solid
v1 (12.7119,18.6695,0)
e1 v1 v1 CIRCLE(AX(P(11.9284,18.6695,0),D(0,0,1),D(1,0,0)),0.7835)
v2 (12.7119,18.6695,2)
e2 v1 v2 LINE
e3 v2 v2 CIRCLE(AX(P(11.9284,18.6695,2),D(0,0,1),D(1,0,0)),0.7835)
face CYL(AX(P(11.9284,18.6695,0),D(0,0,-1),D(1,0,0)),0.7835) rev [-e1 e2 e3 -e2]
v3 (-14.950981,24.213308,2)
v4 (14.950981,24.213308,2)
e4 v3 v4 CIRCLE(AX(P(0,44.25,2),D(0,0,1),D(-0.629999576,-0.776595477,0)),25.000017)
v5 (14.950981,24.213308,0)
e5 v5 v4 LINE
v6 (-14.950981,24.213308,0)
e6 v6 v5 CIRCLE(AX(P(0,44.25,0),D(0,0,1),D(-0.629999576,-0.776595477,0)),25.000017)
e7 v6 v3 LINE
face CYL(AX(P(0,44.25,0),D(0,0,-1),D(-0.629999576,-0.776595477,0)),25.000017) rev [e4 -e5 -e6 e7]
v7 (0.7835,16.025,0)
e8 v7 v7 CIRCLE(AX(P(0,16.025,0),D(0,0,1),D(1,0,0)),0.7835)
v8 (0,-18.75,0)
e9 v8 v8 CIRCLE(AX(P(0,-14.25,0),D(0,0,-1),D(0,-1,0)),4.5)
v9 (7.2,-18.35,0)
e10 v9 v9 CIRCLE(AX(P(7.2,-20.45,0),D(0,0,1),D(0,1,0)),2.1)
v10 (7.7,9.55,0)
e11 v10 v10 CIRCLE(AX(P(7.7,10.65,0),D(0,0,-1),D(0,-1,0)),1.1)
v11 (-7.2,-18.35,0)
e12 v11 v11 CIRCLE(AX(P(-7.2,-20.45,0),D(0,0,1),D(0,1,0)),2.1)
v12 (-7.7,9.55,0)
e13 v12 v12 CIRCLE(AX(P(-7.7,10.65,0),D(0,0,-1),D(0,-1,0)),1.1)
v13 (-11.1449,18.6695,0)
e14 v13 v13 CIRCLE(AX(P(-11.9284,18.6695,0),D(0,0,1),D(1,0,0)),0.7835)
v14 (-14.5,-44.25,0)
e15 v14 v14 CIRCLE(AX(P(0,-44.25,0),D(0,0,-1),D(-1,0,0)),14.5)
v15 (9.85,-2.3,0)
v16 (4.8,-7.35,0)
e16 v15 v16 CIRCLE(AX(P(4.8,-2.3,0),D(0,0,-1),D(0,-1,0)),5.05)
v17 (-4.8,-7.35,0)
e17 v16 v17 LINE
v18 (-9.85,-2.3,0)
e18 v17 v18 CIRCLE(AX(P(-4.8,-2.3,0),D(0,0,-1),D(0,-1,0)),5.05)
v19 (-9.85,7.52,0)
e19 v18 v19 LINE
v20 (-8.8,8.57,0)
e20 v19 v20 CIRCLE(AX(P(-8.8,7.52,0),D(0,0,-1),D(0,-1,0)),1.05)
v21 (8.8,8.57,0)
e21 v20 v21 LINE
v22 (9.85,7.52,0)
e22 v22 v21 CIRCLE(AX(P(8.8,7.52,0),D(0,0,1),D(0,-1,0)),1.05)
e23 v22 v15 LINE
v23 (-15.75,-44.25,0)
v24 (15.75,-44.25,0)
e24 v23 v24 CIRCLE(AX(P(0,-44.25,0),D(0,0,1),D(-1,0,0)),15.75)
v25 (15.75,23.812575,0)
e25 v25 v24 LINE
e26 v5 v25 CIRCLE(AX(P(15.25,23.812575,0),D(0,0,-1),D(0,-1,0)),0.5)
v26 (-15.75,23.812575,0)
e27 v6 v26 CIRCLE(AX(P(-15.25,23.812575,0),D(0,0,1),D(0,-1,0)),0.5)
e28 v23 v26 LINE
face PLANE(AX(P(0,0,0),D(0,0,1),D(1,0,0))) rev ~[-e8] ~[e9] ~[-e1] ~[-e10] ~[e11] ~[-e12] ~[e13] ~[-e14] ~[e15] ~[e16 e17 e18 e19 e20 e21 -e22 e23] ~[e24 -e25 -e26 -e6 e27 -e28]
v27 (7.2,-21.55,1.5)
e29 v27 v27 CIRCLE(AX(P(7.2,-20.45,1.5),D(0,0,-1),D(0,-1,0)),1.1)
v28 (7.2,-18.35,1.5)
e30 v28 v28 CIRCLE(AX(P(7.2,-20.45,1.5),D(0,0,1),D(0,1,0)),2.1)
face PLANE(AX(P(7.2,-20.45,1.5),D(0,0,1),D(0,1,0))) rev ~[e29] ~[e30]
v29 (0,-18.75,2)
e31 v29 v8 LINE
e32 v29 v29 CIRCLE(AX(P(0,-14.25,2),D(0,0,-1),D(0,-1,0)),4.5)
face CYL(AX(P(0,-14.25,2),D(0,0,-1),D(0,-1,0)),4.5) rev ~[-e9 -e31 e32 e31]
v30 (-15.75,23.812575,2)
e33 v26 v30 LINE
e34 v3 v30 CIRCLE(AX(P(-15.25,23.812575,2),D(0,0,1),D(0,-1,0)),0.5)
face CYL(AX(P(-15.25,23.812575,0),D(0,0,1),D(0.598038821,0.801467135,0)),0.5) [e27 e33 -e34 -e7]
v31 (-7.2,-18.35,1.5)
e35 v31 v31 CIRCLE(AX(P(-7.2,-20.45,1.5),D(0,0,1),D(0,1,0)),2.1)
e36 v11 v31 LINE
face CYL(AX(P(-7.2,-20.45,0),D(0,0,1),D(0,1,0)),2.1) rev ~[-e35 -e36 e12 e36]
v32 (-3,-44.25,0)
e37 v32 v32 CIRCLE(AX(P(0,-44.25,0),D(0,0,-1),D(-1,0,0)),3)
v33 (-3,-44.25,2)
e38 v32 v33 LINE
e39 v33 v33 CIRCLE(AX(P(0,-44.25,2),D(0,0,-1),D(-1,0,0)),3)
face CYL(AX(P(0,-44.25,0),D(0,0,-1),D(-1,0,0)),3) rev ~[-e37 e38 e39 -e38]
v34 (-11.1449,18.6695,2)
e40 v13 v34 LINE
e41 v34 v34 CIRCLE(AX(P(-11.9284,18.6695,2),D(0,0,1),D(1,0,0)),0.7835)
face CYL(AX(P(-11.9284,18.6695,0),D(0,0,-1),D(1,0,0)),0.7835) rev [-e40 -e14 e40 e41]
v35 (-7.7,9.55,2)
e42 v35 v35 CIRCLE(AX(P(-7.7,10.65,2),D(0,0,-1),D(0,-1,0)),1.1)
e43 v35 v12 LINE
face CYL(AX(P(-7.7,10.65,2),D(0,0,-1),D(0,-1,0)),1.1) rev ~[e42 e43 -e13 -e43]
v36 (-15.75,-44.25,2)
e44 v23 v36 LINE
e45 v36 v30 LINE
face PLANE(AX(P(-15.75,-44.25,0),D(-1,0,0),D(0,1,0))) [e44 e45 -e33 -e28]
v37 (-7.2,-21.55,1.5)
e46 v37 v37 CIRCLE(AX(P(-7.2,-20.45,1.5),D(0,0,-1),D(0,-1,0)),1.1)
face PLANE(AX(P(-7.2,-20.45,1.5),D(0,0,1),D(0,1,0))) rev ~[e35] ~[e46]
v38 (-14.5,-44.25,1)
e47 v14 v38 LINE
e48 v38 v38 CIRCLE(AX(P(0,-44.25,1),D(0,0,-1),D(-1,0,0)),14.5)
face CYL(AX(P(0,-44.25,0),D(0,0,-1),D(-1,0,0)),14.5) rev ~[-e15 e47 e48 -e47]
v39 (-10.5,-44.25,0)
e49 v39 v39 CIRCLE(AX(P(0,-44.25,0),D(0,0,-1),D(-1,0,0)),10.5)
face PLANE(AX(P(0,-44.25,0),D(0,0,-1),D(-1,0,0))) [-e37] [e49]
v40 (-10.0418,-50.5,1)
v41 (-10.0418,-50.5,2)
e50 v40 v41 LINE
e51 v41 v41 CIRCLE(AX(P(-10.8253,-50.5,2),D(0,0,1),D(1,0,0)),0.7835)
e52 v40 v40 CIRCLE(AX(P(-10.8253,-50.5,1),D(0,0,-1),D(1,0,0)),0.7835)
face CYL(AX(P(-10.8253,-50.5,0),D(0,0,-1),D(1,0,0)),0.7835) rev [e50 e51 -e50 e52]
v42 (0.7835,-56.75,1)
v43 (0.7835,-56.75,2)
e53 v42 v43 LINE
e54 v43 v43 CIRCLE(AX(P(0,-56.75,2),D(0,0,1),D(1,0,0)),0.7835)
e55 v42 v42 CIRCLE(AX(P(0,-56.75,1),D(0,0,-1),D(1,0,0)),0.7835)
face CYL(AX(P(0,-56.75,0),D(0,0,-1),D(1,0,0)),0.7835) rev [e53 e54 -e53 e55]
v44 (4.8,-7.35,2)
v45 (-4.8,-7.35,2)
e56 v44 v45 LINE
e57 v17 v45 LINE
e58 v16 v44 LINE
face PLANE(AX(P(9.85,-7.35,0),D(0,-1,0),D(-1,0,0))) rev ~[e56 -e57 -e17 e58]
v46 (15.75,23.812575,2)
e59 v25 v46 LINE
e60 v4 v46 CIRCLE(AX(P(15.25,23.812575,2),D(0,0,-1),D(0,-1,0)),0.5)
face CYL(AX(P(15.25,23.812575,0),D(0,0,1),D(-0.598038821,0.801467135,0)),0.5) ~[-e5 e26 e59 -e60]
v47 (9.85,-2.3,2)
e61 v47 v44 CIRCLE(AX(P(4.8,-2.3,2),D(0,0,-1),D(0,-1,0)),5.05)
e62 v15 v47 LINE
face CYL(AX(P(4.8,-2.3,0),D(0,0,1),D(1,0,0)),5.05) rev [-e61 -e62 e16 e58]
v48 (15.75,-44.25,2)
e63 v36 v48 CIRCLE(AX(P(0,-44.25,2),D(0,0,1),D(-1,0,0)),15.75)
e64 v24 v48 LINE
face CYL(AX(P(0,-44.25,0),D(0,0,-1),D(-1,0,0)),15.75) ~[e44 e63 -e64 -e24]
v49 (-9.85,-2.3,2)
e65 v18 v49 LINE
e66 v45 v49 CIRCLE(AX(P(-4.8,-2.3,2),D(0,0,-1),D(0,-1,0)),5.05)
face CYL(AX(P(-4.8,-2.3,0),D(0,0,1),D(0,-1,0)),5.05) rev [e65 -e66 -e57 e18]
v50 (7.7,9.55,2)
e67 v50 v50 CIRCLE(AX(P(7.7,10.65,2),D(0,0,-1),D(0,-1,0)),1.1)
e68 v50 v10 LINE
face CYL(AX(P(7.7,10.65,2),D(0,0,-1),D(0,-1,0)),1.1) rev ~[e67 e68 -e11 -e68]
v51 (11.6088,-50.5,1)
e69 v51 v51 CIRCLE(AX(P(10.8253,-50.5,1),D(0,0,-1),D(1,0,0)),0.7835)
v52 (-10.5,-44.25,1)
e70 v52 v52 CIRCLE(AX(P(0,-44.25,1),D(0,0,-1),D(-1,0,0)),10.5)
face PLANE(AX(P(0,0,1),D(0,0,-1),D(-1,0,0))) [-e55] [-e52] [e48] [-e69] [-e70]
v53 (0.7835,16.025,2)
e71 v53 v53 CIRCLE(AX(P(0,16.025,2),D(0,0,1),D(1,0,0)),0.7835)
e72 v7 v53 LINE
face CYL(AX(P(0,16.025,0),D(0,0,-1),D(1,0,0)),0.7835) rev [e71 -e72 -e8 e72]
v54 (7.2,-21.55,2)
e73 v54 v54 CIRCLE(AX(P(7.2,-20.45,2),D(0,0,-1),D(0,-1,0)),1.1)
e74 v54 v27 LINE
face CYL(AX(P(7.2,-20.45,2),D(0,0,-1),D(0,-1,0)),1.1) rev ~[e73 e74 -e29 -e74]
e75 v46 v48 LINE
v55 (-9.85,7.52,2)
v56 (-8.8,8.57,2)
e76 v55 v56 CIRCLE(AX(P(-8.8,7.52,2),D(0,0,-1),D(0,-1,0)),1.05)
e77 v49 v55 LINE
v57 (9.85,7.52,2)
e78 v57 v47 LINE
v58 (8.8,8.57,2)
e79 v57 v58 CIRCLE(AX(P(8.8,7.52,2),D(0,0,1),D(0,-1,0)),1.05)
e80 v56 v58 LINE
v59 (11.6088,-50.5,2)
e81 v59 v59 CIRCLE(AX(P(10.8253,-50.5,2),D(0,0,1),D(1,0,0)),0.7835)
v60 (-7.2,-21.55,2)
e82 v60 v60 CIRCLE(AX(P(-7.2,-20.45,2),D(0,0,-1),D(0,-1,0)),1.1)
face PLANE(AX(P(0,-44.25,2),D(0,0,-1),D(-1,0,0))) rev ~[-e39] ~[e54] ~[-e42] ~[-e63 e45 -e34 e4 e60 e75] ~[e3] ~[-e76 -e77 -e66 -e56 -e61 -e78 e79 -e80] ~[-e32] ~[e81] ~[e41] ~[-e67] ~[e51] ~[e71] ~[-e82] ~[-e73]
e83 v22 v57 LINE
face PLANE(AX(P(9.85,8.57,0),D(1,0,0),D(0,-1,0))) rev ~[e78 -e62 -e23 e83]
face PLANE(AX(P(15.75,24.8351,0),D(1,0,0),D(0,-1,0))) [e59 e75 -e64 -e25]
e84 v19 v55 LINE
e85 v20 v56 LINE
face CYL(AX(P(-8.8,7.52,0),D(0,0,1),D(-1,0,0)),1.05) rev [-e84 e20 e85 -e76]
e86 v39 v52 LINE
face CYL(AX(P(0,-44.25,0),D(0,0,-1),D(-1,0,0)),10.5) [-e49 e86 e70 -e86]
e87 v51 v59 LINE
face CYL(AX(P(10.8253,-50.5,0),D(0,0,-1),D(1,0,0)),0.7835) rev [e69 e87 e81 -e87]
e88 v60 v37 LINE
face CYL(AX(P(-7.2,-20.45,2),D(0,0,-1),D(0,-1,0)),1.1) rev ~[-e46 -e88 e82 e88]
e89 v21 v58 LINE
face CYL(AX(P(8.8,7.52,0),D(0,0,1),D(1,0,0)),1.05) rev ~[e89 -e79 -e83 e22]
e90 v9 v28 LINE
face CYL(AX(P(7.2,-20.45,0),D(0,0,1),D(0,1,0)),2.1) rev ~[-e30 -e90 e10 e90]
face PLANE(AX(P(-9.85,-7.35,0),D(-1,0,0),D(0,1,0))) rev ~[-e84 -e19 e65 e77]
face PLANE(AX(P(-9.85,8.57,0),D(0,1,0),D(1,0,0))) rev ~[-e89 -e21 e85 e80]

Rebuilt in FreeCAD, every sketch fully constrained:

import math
import FreeCAD as App
import Part
import Sketcher

V = App.Vector
Q = App.Units.Quantity


def edges_at(feature, points):
    """Names of the edges that pass closest to the given points."""
    edges = feature.Shape.Edges
    near = lambda p: min(range(len(edges)), key=lambda i: edges[i].distToShape(Part.Vertex(*p))[0])
    return sorted({f"Edge{near(p) + 1}" for p in points})


def add_polygon(sketch, points):
    """Adds a closed chain of lines whose ends are joined by coincident constraints."""
    first, n = sketch.GeometryCount, len(points)
    for a, b in zip(points, points[1:] + points[:1]):
        sketch.addGeometry(Part.LineSegment(App.Vector(*a, 0), App.Vector(*b, 0)), False)
    for i in range(n):
        sketch.addConstraint(Sketcher.Constraint("Coincident", first + i, 2, first + (i + 1) % n, 1))

doc = App.newDocument("Part")
body = doc.addObject("PartDesign::Body", "Body")

# Sketch on XY plane
sketch1 = body.newObject("Sketcher::SketchObject", "Sketch")
sketch1.AttachmentSupport = (doc.getObject("XY_Plane"), [""])
sketch1.MapMode = "FlatFace"
sketch1.addGeometry(Part.ArcOfCircle(Part.Circle(V(0, 44.25, 0), V(0, 0, 1), 25.000017), math.radians(-129.050091), math.radians(-50.949909)), False)  # 0
sketch1.addGeometry(Part.LineSegment(V(-15.75, 24.8351, 0), V(-15.75, -44.25, 0)), False)  # 1
sketch1.addGeometry(Part.ArcOfCircle(Part.Circle(V(0, -44.25, 0), V(0, 0, 1), 15.75), math.radians(180), math.radians(360)), False)  # 2
sketch1.addGeometry(Part.LineSegment(V(15.75, -44.25, 0), V(15.75, 24.8351, 0)), False)  # 3
add_polygon(sketch1, [(9.85, -7.35), (-9.85, -7.35), (-9.85, 8.57), (9.85, 8.57)])  # lines 4-7
sketch1.addGeometry(Part.Circle(V(-10.8253, -50.5, 0), V(0, 0, 1), 0.7835), False)  # 8
sketch1.addGeometry(Part.Circle(V(0, -56.75, 0), V(0, 0, 1), 0.7835), False)  # 9
sketch1.addGeometry(Part.Circle(V(0, -44.25, 0), V(0, 0, 1), 4), False)  # 10
sketch1.addGeometry(Part.Circle(V(10.8253, -50.5, 0), V(0, 0, 1), 0.7835), False)  # 11
sketch1.addGeometry(Part.Circle(V(-11.9284, 18.6695, 0), V(0, 0, 1), 0.7835), False)  # 12
sketch1.addGeometry(Part.Circle(V(11.9284, 18.6695, 0), V(0, 0, 1), 0.7835), False)  # 13
sketch1.addGeometry(Part.Circle(V(0, 16.025, 0), V(0, 0, 1), 0.7835), False)  # 14
sketch1.addConstraint([
    Sketcher.Constraint("Coincident", 0, 1, 1, 1),
    Sketcher.Constraint("Tangent", 1, 2, 2, 1),
    Sketcher.Constraint("Tangent", 2, 2, 3, 1),
    Sketcher.Constraint("Coincident", 3, 2, 0, 2),
    Sketcher.Constraint("Vertical", 1),
    Sketcher.Constraint("Vertical", 3),
    Sketcher.Constraint("Horizontal", 4),
    Sketcher.Constraint("Vertical", 5),
    Sketcher.Constraint("Horizontal", 6),
    Sketcher.Constraint("Vertical", 7),
    Sketcher.Constraint("Coincident", 10, 3, 2, 3),
    Sketcher.Constraint("Equal", 8, 9),
    Sketcher.Constraint("Equal", 9, 11),
    Sketcher.Constraint("Equal", 11, 12),
    Sketcher.Constraint("Equal", 12, 13),
    Sketcher.Constraint("Equal", 13, 14),
    Sketcher.Constraint("Symmetric", 0, 3, 2, 3, -1, 1),
    Sketcher.Constraint("Symmetric", 8, 3, 11, 3, -2),
    Sketcher.Constraint("Symmetric", 12, 3, 13, 3, -2),
    Sketcher.Constraint("PointOnObject", 0, 3, -2),
    Sketcher.Constraint("PointOnObject", 9, 3, -2),
    Sketcher.Constraint("PointOnObject", 14, 3, -2),
    Sketcher.Constraint("Radius", 2, Q("15.75 mm")),
    Sketcher.Constraint("Diameter", 10, Q("8 mm")),
    Sketcher.Constraint("Radius", 0, Q("25 mm")),
    Sketcher.Constraint("Diameter", 8, Q("1.567 mm")),
    Sketcher.Constraint("DistanceX", 4, 2, 4, 1, Q("19.7 mm")),
    Sketcher.Constraint("DistanceY", 9, 3, 0, 3, Q("101 mm")),
    Sketcher.Constraint("DistanceY", 5, 1, 5, 2, Q("15.92 mm")),
    Sketcher.Constraint("DistanceY", 8, 3, -1, 1, Q("50.5 mm")),
    Sketcher.Constraint("DistanceY", 2, 3, 0, 3, Q("88.5 mm")),
    Sketcher.Constraint("DistanceX", 0, 1, 4, 2, Q("5.9 mm")),
    Sketcher.Constraint("DistanceY", 1, 2, 4, 2, Q("36.9 mm")),
    Sketcher.Constraint("DistanceY", 14, 3, 0, 1, Q("8.81 mm")),
    Sketcher.Constraint("DistanceX", 12, 3, 8, 3, Q("1.103 mm")),
    Sketcher.Constraint("DistanceX", 8, 3, -1, 1, Q("10.8253 mm")),
    Sketcher.Constraint("DistanceY", -1, 1, 12, 3, Q("18.6695 mm")),
])
pad1 = body.newObject("PartDesign::Pad", "Pad")
pad1.Profile = sketch1
pad1.Length = 2

# Sketch on XY plane
sketch2 = body.newObject("Sketcher::SketchObject", "Sketch001")
sketch2.AttachmentSupport = (doc.getObject("XY_Plane"), [""])
sketch2.MapMode = "FlatFace"
sketch2.AttachmentOffset = App.Placement(V(0, 0, 2), App.Rotation())
sketch2.addGeometry([
    Part.Circle(V(7.7, 10.65, 0), V(0, 0, 1), 1.1),  # 0
    Part.Circle(V(7.2, -20.45, 0), V(0, 0, 1), 1.1),  # 1
    Part.Circle(V(-7.2, -20.45, 0), V(0, 0, 1), 1.1),  # 2
    Part.Circle(V(-7.7, 10.65, 0), V(0, 0, 1), 1.1),  # 3
    Part.Circle(V(0, -14.25, 0), V(0, 0, 1), 1.1),  # 4
], False)
sketch2.addConstraint([
    Sketcher.Constraint("Equal", 0, 1),
    Sketcher.Constraint("Equal", 1, 2),
    Sketcher.Constraint("Equal", 2, 3),
    Sketcher.Constraint("Equal", 3, 4),
    Sketcher.Constraint("Symmetric", 1, 3, 2, 3, -2),
    Sketcher.Constraint("Symmetric", 0, 3, 3, 3, -2),
    Sketcher.Constraint("PointOnObject", 4, 3, -2),
    Sketcher.Constraint("Diameter", 0, Q("2.2 mm")),
    Sketcher.Constraint("DistanceX", -1, 1, 0, 3, Q("7.7 mm")),
    Sketcher.Constraint("DistanceX", -1, 1, 1, 3, Q("7.2 mm")),
    Sketcher.Constraint("DistanceY", 1, 3, 0, 3, Q("31.1 mm")),
    Sketcher.Constraint("DistanceY", 1, 3, 4, 3, Q("6.2 mm")),
    Sketcher.Constraint("DistanceY", -1, 1, 0, 3, Q("10.65 mm")),
])
doc.recompute()
hole = body.newObject("PartDesign::Hole", "Hole")
hole.Profile = sketch2
hole.ThreadType = "None"
hole.Diameter = 2.2
hole.DepthType = "Dimension"
hole.Depth = 8
hole.DrillPoint = "Angled"
hole.DrillPointAngle = 118

# Sketch on XY plane
sketch3 = body.newObject("Sketcher::SketchObject", "Sketch002")
sketch3.AttachmentSupport = (doc.getObject("XY_Plane"), [""])
sketch3.MapMode = "FlatFace"
sketch3.AttachmentOffset = App.Placement(V(0, 0, 2), App.Rotation())
sketch3.addGeometry(Part.Circle(V(0, -14.25, 0), V(0, 0, 1), 4.5), False)
sketch3.addConstraint([
    Sketcher.Constraint("PointOnObject", 0, 3, -2),
    Sketcher.Constraint("Diameter", 0, Q("9 mm")),
    Sketcher.Constraint("DistanceY", 0, 3, -1, 1, Q("14.25 mm")),
])
doc.recompute()
hole2 = body.newObject("PartDesign::Hole", "Hole001")
hole2.Profile = sketch3
hole2.ThreadType = "None"
hole2.Diameter = 9
hole2.DepthType = "Dimension"
hole2.Depth = 8
hole2.DrillPoint = "Angled"
hole2.DrillPointAngle = 118
doc.recompute()

fillet = body.newObject("PartDesign::Fillet", "Fillet")
fillet.Base = (hole2, edges_at(hole2, [(-9.85, 8.57, 1), (9.85, 8.57, 1)]))
fillet.Radius = 1.05
doc.recompute()

fillet2 = body.newObject("PartDesign::Fillet", "Fillet001")
fillet2.Base = (fillet, edges_at(fillet, [(-9.85, -7.35, 1), (9.85, -7.35, 1)]))
fillet2.Radius = 5.05

# Sketch on XY plane
sketch4 = body.newObject("Sketcher::SketchObject", "Sketch003")
sketch4.AttachmentSupport = (doc.getObject("XY_Plane"), [""])
sketch4.MapMode = "FlatFace"
sketch4.addGeometry([
    Part.Circle(V(0, -44.25, 0), V(0, 0, 1), 14.5),  # 0
    Part.Circle(V(10.8253, -50.5, 0), V(0, 0, 1), 0.7835),  # 1
    Part.Circle(V(0, -56.75, 0), V(0, 0, 1), 0.7835),  # 2
    Part.Circle(V(-10.8253, -50.5, 0), V(0, 0, 1), 0.7835),  # 3
    Part.Circle(V(0, -44.25, 0), V(0, 0, 1), 10.5),  # 4
], False)
sketch4.addConstraint([
    Sketcher.Constraint("Coincident", 4, 3, 0, 3),
    Sketcher.Constraint("Equal", 1, 2),
    Sketcher.Constraint("Equal", 2, 3),
    Sketcher.Constraint("Symmetric", 1, 3, 3, 3, -2),
    Sketcher.Constraint("PointOnObject", 0, 3, -2),
    Sketcher.Constraint("PointOnObject", 2, 3, -2),
    Sketcher.Constraint("Diameter", 0, Q("29 mm")),
    Sketcher.Constraint("Diameter", 4, Q("21 mm")),
    Sketcher.Constraint("Diameter", 1, Q("1.567 mm")),
    Sketcher.Constraint("DistanceY", 1, 3, -1, 1, Q("50.5 mm")),
    Sketcher.Constraint("DistanceY", 2, 3, 0, 3, Q("12.5 mm")),
    Sketcher.Constraint("DistanceY", 0, 3, -1, 1, Q("44.25 mm")),
    Sketcher.Constraint("DistanceX", -1, 1, 1, 3, Q("10.8253 mm")),
])
pocket1 = body.newObject("PartDesign::Pocket", "Pocket")
pocket1.Profile = sketch4
pocket1.Length = 1
pocket1.Reversed = True
doc.recompute()

fillet3 = body.newObject("PartDesign::Fillet", "Fillet002")
fillet3.Base = (pocket1, edges_at(pocket1, [(-15.75, 24.835, 1), (15.75, 24.835, 1)]))
fillet3.Radius = 0.5

# Sketch on XY plane
sketch5 = body.newObject("Sketcher::SketchObject", "Sketch004")
sketch5.AttachmentSupport = (doc.getObject("XY_Plane"), [""])
sketch5.MapMode = "FlatFace"
sketch5.addGeometry([
    Part.Circle(V(7.2, -20.45, 0), V(0, 0, 1), 2.1),
    Part.Circle(V(-7.2, -20.45, 0), V(0, 0, 1), 2.1),
], False)
sketch5.addConstraint([
    Sketcher.Constraint("Equal", 0, 1),
    Sketcher.Constraint("Symmetric", 0, 3, 1, 3, -2),
    Sketcher.Constraint("Diameter", 0, Q("4.2 mm")),
    Sketcher.Constraint("DistanceX", -1, 1, 0, 3, Q("7.2 mm")),
    Sketcher.Constraint("DistanceY", 0, 3, -1, 1, Q("20.45 mm")),
])
doc.recompute()
hole3 = body.newObject("PartDesign::Hole", "Hole002")
hole3.Profile = sketch5
hole3.ThreadType = "None"
hole3.Diameter = 4.2
hole3.DepthType = "Dimension"
hole3.Depth = 1.5
hole3.DrillPoint = "Flat"
hole3.Reversed = True

# Sketch on XY plane
sketch6 = body.newObject("Sketcher::SketchObject", "Sketch005")
sketch6.AttachmentSupport = (doc.getObject("XY_Plane"), [""])
sketch6.MapMode = "FlatFace"
sketch6.addGeometry([
    Part.Circle(V(0, -44.25, 0), V(0, 0, 1), 4),
    Part.Circle(V(0, -44.25, 0), V(0, 0, 1), 3),
], False)
sketch6.addConstraint([
    Sketcher.Constraint("Coincident", 1, 3, 0, 3),
    Sketcher.Constraint("PointOnObject", 0, 3, -2),
    Sketcher.Constraint("Diameter", 1, Q("6 mm")),
    Sketcher.Constraint("Diameter", 0, Q("8 mm")),
    Sketcher.Constraint("DistanceY", 0, 3, -1, 1, Q("44.25 mm")),
])
pad2 = body.newObject("PartDesign::Pad", "Pad001")
pad2.Profile = sketch6
pad2.Length = 2

doc.recompute()
